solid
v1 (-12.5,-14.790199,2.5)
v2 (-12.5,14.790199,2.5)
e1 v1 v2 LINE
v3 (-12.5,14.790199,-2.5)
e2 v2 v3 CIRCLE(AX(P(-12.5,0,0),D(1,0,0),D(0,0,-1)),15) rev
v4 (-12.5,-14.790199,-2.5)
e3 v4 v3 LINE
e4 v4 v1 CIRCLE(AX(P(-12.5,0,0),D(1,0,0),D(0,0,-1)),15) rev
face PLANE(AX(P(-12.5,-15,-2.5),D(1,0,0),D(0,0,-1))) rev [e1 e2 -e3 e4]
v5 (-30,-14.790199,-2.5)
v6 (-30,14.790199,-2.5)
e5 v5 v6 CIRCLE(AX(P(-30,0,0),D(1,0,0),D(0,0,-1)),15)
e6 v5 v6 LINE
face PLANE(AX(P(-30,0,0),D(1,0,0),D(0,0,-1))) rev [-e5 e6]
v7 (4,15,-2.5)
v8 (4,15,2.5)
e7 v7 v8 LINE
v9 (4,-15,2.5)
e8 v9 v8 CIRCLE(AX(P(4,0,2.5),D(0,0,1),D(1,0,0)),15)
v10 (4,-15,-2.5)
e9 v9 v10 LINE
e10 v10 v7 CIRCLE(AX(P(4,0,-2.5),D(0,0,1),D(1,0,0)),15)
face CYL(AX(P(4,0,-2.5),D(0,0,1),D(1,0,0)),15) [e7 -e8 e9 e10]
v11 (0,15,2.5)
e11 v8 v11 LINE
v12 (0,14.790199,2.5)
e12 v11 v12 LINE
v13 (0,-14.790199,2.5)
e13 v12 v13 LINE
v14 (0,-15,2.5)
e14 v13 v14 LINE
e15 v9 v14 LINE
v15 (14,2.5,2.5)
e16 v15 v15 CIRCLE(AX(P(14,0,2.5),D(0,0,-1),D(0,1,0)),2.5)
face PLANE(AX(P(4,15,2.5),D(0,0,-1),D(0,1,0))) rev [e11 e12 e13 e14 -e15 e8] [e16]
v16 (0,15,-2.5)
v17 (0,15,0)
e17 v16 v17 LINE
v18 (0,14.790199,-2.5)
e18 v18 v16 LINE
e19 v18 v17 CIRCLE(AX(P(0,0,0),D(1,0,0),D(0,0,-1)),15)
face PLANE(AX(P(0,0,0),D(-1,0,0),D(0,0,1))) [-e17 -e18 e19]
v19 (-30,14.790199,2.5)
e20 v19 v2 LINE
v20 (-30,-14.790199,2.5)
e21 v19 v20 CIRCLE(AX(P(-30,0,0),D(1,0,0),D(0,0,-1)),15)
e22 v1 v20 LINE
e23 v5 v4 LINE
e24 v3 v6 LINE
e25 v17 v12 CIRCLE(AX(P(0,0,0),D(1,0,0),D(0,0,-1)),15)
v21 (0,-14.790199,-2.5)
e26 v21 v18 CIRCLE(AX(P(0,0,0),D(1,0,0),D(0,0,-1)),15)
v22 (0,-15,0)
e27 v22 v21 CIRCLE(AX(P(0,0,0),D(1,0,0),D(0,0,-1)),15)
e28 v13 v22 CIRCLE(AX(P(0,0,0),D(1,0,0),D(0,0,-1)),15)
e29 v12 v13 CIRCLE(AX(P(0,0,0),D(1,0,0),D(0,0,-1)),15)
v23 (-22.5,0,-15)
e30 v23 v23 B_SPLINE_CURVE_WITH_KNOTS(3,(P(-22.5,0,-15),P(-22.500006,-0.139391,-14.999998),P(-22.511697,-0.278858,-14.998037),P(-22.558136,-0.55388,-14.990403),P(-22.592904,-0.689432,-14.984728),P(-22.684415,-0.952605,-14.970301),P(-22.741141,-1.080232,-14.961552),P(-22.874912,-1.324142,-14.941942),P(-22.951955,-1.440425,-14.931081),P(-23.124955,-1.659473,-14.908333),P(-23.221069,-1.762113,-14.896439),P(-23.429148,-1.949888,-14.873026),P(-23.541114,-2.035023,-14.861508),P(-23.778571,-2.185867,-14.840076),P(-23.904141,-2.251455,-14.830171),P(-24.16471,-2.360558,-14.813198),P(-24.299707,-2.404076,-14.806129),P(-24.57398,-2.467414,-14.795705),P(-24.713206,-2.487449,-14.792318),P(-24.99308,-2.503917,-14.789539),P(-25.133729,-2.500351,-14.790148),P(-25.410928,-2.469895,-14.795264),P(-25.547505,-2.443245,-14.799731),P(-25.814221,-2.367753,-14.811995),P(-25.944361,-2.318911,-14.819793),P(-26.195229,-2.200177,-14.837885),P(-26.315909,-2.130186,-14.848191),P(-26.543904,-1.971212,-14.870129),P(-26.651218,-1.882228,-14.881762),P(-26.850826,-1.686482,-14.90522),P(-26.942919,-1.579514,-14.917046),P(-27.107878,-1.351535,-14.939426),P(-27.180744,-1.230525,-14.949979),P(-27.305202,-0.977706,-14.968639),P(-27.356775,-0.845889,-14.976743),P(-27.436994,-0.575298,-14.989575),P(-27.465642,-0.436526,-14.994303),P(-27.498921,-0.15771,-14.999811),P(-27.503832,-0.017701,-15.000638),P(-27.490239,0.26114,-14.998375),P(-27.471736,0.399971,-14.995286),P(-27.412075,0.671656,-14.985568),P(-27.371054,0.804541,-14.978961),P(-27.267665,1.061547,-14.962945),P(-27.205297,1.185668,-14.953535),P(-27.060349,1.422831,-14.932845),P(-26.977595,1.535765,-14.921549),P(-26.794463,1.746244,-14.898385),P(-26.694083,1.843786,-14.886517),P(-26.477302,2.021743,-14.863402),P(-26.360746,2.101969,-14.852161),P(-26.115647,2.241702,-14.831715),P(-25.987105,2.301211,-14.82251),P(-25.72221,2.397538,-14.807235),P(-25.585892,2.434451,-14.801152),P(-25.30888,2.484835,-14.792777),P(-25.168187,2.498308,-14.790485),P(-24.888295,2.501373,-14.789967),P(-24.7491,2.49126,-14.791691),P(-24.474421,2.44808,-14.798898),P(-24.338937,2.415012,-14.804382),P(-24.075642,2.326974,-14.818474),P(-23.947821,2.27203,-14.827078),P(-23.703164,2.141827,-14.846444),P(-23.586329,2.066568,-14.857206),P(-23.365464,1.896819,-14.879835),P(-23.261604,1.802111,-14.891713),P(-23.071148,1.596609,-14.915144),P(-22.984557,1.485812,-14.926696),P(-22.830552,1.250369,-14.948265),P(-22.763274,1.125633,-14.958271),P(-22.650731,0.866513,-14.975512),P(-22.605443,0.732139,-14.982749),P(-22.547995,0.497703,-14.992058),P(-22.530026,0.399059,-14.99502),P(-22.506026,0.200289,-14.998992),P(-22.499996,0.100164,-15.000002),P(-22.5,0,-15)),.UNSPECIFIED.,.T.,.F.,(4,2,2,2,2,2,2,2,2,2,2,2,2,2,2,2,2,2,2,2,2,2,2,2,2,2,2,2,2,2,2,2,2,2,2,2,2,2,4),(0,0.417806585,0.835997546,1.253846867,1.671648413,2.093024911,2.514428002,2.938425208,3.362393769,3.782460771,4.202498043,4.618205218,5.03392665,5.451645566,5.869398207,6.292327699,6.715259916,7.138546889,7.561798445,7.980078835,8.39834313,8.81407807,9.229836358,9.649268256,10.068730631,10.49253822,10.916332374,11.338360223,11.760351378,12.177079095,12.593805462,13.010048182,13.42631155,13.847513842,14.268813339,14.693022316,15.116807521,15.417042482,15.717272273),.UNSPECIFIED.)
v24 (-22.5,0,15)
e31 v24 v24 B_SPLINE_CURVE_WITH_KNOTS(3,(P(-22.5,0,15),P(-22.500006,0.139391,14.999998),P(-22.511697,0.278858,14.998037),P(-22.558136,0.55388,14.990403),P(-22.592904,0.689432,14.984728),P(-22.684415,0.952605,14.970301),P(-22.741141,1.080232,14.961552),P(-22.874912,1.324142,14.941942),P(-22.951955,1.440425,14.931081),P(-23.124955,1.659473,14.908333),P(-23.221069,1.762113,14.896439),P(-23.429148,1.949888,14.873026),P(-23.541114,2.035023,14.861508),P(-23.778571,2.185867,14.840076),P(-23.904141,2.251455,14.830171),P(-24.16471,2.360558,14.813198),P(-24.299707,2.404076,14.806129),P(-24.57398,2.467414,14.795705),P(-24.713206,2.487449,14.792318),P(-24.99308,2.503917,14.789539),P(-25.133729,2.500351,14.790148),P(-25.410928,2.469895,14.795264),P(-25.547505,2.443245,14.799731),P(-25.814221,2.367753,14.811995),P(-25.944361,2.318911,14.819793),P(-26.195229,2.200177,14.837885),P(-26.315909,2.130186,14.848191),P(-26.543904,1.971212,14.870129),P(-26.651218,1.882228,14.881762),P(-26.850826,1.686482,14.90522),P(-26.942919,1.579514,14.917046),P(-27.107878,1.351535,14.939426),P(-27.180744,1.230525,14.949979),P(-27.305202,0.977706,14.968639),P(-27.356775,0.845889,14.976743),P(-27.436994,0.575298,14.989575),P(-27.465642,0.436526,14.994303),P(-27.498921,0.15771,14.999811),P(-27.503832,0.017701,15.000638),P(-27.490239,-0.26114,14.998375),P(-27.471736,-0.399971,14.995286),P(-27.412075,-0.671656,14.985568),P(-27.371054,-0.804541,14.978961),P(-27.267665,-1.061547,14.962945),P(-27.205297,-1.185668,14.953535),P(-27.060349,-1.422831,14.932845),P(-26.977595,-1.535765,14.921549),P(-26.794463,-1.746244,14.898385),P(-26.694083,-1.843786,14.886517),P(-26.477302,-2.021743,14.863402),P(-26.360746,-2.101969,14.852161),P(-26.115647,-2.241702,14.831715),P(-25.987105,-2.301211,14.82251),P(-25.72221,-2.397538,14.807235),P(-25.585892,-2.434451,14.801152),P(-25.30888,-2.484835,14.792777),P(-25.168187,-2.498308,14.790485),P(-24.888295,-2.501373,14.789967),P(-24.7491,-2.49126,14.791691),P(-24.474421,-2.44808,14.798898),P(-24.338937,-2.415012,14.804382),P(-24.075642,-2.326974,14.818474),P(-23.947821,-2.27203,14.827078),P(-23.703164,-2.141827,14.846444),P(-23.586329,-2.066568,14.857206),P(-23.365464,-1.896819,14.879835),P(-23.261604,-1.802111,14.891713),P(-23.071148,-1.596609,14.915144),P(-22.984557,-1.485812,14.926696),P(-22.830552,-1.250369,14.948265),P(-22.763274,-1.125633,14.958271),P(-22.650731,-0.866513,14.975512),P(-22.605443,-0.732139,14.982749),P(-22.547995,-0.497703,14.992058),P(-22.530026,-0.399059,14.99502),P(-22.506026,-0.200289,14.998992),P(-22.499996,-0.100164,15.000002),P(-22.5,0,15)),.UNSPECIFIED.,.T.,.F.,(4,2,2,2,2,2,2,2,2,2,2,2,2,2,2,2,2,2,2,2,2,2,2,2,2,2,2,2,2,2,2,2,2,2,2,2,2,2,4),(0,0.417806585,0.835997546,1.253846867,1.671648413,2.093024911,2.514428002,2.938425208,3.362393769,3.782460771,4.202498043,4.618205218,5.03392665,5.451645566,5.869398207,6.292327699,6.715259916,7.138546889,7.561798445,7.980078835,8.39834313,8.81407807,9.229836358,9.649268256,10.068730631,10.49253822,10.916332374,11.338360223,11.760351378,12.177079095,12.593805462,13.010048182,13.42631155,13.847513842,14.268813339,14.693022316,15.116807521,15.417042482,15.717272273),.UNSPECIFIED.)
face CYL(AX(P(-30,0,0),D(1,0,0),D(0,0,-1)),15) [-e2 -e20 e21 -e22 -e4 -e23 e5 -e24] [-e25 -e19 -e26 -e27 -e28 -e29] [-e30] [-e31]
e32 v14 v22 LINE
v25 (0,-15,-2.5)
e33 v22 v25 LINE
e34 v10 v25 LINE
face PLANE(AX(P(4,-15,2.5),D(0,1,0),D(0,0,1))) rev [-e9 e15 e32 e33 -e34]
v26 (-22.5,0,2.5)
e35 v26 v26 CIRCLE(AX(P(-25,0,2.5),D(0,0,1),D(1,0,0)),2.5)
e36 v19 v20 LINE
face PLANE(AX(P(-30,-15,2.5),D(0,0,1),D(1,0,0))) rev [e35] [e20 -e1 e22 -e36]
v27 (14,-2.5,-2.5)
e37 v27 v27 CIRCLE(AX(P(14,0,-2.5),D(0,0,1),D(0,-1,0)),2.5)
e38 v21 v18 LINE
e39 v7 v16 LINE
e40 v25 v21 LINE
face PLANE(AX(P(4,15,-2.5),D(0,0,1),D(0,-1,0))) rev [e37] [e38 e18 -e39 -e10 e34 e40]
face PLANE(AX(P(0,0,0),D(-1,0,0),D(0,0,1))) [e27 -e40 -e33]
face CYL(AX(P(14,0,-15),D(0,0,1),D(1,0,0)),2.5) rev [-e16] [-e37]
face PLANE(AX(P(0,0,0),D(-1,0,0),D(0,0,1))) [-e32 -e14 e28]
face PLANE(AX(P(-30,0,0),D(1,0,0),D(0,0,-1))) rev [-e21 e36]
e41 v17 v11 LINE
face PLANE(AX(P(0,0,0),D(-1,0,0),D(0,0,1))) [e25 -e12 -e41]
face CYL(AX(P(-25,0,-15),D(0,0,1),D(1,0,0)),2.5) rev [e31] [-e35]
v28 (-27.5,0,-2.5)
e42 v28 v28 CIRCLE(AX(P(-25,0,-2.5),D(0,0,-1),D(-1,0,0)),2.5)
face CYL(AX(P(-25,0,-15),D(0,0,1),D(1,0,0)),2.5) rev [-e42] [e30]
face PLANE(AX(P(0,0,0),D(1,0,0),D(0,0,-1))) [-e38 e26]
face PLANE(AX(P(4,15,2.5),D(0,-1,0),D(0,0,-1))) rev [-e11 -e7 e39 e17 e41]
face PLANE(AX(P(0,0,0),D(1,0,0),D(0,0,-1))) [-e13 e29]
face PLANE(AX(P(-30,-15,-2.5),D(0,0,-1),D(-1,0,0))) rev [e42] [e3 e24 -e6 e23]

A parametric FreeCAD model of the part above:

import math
import FreeCAD as App
import Part
import Sketcher


def add_polygon(sketch, points):
    """Adds a closed chain of lines whose ends are joined by coincident constraints."""
    first, n = sketch.GeometryCount, len(points)
    for a, b in zip(points, points[1:] + points[:1]):
        sketch.addGeometry(Part.LineSegment(App.Vector(*a, 0), App.Vector(*b, 0)), False)
    for i in range(n):
        sketch.addConstraint(Sketcher.Constraint("Coincident", first + i, 2, first + (i + 1) % n, 1))

doc = App.newDocument("Part")
params = doc.addObject("Spreadsheet::Sheet", "Params")
for row, (alias, value) in enumerate([
    ("sketch1_diameter", "30 mm"),
    ("pad1_length", "30 mm"),
    ("sketch2_height", "5 mm"),
    ("sketch2_width", "17.5 mm"),
    ("sketch3_diameter", "5 mm"),
    ("sketch4_width", "30 mm"),
    ("sketch4_height", "5 mm"),
    ("pad2_length", "4 mm"),
    ("sketch5_radius", "15 mm"),
    ("pad3_length", "5 mm"),
    ("sketch6_diameter", "5 mm"),
], start=1):
    params.set(f"A{row}", alias)
    params.set(f"B{row}", "=" + value)
    params.setAlias(f"B{row}", alias)

body = doc.addObject("PartDesign::Body", "Body")

# Sketch on YZ plane
sketch1 = body.newObject("Sketcher::SketchObject", "Sketch")
sketch1.AttachmentSupport = (doc.getObject("YZ_Plane"), [""])
sketch1.MapMode = "FlatFace"
sketch1.addGeometry(Part.Circle(App.Vector(0, 0, 0), App.Vector(0, 0, 1), 15), False)
sketch1.addConstraint(Sketcher.Constraint("Coincident", 0, 3, -1, 1))
sketch1.addConstraint(Sketcher.Constraint("Diameter", 0, 30.0))
sketch1.setExpression("Constraints[1]", "Params.sketch1_diameter")
pad1 = body.newObject("PartDesign::Pad", "Pad")
pad1.Profile = sketch1
pad1.setExpression("Length", "Params.pad1_length")
pad1.Reversed = True

# Sketch on XZ plane
sketch2 = body.newObject("Sketcher::SketchObject", "Sketch001")
sketch2.AttachmentSupport = (doc.getObject("XZ_Plane"), [""])
sketch2.MapMode = "FlatFace"
add_polygon(sketch2, [(-30, -2), (-30, 2), (-12, 2), (-12, -2)])  # lines 0-3
sketch2.addConstraint(Sketcher.Constraint("Vertical", 0))
sketch2.addConstraint(Sketcher.Constraint("Horizontal", 1))
sketch2.addConstraint(Sketcher.Constraint("Vertical", 2))
sketch2.addConstraint(Sketcher.Constraint("Horizontal", 3))
sketch2.addConstraint(Sketcher.Constraint("DistanceY", 0, 1, 0, 2, 5.0))
sketch2.addConstraint(Sketcher.Constraint("DistanceX", 1, 1, 1, 2, 17.5))
sketch2.addConstraint(Sketcher.Constraint("DistanceX", 0, 2, -1, 1, 30.0))
sketch2.addConstraint(Sketcher.Constraint("DistanceY", -1, 1, 0, 2, 2.5))
sketch2.setExpression("Constraints[8]", "Params.sketch2_height")
sketch2.setExpression("Constraints[9]", "Params.sketch2_width")
pocket1 = body.newObject("PartDesign::Pocket", "Pocket")
pocket1.Profile = sketch2
pocket1.Type = "ThroughAll"
pocket1.Midplane = True

# Sketch on XY plane
sketch3 = body.newObject("Sketcher::SketchObject", "Sketch002")
sketch3.AttachmentSupport = (doc.getObject("XY_Plane"), [""])
sketch3.MapMode = "FlatFace"
sketch3.addGeometry(Part.Circle(App.Vector(-25, 0, 0), App.Vector(0, 0, 1), 2.5), False)
sketch3.addConstraint(Sketcher.Constraint("PointOnObject", 0, 3, -1))
sketch3.addConstraint(Sketcher.Constraint("Diameter", 0, 5.0))
sketch3.addConstraint(Sketcher.Constraint("DistanceX", 0, 3, -1, 1, 25.0))
sketch3.setExpression("Constraints[1]", "Params.sketch3_diameter")
pocket2 = body.newObject("PartDesign::Pocket", "Pocket001")
pocket2.Profile = sketch3
pocket2.Type = "ThroughAll"
pocket2.Midplane = True

# Sketch on YZ plane
sketch4 = body.newObject("Sketcher::SketchObject", "Sketch003")
sketch4.AttachmentSupport = (doc.getObject("YZ_Plane"), [""])
sketch4.MapMode = "FlatFace"
add_polygon(sketch4, [(15, 2), (-15, 2), (-15, -2), (15, -2)])  # lines 0-3
sketch4.addConstraint(Sketcher.Constraint("Horizontal", 0))
sketch4.addConstraint(Sketcher.Constraint("Vertical", 1))
sketch4.addConstraint(Sketcher.Constraint("Horizontal", 2))
sketch4.addConstraint(Sketcher.Constraint("Vertical", 3))
sketch4.addConstraint(Sketcher.Constraint("Symmetric", 0, 2, 2, 2, -1, 1))
sketch4.addConstraint(Sketcher.Constraint("DistanceX", 0, 2, 0, 1, 30.0))
sketch4.addConstraint(Sketcher.Constraint("DistanceY", 1, 2, 1, 1, 5.0))
sketch4.setExpression("Constraints[9]", "Params.sketch4_width")
sketch4.setExpression("Constraints[10]", "Params.sketch4_height")
pad2 = body.newObject("PartDesign::Pad", "Pad001")
pad2.Profile = sketch4
pad2.setExpression("Length", "Params.pad2_length")

# Sketch on XY plane
sketch5 = body.newObject("Sketcher::SketchObject", "Sketch004")
sketch5.AttachmentSupport = (doc.getObject("XY_Plane"), [""])
sketch5.MapMode = "FlatFace"
sketch5.AttachmentOffset = App.Placement(App.Vector(0, 0, 2.5), App.Rotation())
sketch5.addGeometry(Part.LineSegment(App.Vector(4, 15, 0), App.Vector(4, -15, 0)), False)
sketch5.addGeometry(Part.ArcOfCircle(Part.Circle(App.Vector(4, 0, 0), App.Vector(0, 0, 1), 15), math.radians(-90), math.radians(90)), False)
sketch5.addConstraint(Sketcher.Constraint("Coincident", 0, 1, 1, 2))
sketch5.addConstraint(Sketcher.Constraint("Coincident", 1, 1, 0, 2))
sketch5.addConstraint(Sketcher.Constraint("Vertical", 0))
sketch5.addConstraint(Sketcher.Constraint("PointOnObject", 1, 3, -1))
sketch5.addConstraint(Sketcher.Constraint("Vertical", 1, 3, 0, 1))
sketch5.addConstraint(Sketcher.Constraint("Radius", 1, 15.0))
sketch5.addConstraint(Sketcher.Constraint("DistanceX", -1, 1, 1, 3, 4.0))
sketch5.setExpression("Constraints[5]", "Params.sketch5_radius")
pad3 = body.newObject("PartDesign::Pad", "Pad002")
pad3.Profile = sketch5
pad3.setExpression("Length", "Params.pad3_length")
pad3.Reversed = True

# Sketch on XY plane
sketch6 = body.newObject("Sketcher::SketchObject", "Sketch005")
sketch6.AttachmentSupport = (doc.getObject("XY_Plane"), [""])
sketch6.MapMode = "FlatFace"
sketch6.AttachmentOffset = App.Placement(App.Vector(0, 0, 2.5), App.Rotation())
sketch6.addGeometry(Part.Circle(App.Vector(14, 0, 0), App.Vector(0, 0, 1), 2.5), False)
sketch6.addConstraint(Sketcher.Constraint("PointOnObject", 0, 3, -1))
sketch6.addConstraint(Sketcher.Constraint("Diameter", 0, 5.0))
sketch6.addConstraint(Sketcher.Constraint("DistanceX", -1, 1, 0, 3, 14.0))
sketch6.setExpression("Constraints[1]", "Params.sketch6_diameter")
pocket3 = body.newObject("PartDesign::Pocket", "Pocket002")
pocket3.Profile = sketch6
pocket3.Type = "ThroughAll"
pocket3.Midplane = True

doc.recompute()
